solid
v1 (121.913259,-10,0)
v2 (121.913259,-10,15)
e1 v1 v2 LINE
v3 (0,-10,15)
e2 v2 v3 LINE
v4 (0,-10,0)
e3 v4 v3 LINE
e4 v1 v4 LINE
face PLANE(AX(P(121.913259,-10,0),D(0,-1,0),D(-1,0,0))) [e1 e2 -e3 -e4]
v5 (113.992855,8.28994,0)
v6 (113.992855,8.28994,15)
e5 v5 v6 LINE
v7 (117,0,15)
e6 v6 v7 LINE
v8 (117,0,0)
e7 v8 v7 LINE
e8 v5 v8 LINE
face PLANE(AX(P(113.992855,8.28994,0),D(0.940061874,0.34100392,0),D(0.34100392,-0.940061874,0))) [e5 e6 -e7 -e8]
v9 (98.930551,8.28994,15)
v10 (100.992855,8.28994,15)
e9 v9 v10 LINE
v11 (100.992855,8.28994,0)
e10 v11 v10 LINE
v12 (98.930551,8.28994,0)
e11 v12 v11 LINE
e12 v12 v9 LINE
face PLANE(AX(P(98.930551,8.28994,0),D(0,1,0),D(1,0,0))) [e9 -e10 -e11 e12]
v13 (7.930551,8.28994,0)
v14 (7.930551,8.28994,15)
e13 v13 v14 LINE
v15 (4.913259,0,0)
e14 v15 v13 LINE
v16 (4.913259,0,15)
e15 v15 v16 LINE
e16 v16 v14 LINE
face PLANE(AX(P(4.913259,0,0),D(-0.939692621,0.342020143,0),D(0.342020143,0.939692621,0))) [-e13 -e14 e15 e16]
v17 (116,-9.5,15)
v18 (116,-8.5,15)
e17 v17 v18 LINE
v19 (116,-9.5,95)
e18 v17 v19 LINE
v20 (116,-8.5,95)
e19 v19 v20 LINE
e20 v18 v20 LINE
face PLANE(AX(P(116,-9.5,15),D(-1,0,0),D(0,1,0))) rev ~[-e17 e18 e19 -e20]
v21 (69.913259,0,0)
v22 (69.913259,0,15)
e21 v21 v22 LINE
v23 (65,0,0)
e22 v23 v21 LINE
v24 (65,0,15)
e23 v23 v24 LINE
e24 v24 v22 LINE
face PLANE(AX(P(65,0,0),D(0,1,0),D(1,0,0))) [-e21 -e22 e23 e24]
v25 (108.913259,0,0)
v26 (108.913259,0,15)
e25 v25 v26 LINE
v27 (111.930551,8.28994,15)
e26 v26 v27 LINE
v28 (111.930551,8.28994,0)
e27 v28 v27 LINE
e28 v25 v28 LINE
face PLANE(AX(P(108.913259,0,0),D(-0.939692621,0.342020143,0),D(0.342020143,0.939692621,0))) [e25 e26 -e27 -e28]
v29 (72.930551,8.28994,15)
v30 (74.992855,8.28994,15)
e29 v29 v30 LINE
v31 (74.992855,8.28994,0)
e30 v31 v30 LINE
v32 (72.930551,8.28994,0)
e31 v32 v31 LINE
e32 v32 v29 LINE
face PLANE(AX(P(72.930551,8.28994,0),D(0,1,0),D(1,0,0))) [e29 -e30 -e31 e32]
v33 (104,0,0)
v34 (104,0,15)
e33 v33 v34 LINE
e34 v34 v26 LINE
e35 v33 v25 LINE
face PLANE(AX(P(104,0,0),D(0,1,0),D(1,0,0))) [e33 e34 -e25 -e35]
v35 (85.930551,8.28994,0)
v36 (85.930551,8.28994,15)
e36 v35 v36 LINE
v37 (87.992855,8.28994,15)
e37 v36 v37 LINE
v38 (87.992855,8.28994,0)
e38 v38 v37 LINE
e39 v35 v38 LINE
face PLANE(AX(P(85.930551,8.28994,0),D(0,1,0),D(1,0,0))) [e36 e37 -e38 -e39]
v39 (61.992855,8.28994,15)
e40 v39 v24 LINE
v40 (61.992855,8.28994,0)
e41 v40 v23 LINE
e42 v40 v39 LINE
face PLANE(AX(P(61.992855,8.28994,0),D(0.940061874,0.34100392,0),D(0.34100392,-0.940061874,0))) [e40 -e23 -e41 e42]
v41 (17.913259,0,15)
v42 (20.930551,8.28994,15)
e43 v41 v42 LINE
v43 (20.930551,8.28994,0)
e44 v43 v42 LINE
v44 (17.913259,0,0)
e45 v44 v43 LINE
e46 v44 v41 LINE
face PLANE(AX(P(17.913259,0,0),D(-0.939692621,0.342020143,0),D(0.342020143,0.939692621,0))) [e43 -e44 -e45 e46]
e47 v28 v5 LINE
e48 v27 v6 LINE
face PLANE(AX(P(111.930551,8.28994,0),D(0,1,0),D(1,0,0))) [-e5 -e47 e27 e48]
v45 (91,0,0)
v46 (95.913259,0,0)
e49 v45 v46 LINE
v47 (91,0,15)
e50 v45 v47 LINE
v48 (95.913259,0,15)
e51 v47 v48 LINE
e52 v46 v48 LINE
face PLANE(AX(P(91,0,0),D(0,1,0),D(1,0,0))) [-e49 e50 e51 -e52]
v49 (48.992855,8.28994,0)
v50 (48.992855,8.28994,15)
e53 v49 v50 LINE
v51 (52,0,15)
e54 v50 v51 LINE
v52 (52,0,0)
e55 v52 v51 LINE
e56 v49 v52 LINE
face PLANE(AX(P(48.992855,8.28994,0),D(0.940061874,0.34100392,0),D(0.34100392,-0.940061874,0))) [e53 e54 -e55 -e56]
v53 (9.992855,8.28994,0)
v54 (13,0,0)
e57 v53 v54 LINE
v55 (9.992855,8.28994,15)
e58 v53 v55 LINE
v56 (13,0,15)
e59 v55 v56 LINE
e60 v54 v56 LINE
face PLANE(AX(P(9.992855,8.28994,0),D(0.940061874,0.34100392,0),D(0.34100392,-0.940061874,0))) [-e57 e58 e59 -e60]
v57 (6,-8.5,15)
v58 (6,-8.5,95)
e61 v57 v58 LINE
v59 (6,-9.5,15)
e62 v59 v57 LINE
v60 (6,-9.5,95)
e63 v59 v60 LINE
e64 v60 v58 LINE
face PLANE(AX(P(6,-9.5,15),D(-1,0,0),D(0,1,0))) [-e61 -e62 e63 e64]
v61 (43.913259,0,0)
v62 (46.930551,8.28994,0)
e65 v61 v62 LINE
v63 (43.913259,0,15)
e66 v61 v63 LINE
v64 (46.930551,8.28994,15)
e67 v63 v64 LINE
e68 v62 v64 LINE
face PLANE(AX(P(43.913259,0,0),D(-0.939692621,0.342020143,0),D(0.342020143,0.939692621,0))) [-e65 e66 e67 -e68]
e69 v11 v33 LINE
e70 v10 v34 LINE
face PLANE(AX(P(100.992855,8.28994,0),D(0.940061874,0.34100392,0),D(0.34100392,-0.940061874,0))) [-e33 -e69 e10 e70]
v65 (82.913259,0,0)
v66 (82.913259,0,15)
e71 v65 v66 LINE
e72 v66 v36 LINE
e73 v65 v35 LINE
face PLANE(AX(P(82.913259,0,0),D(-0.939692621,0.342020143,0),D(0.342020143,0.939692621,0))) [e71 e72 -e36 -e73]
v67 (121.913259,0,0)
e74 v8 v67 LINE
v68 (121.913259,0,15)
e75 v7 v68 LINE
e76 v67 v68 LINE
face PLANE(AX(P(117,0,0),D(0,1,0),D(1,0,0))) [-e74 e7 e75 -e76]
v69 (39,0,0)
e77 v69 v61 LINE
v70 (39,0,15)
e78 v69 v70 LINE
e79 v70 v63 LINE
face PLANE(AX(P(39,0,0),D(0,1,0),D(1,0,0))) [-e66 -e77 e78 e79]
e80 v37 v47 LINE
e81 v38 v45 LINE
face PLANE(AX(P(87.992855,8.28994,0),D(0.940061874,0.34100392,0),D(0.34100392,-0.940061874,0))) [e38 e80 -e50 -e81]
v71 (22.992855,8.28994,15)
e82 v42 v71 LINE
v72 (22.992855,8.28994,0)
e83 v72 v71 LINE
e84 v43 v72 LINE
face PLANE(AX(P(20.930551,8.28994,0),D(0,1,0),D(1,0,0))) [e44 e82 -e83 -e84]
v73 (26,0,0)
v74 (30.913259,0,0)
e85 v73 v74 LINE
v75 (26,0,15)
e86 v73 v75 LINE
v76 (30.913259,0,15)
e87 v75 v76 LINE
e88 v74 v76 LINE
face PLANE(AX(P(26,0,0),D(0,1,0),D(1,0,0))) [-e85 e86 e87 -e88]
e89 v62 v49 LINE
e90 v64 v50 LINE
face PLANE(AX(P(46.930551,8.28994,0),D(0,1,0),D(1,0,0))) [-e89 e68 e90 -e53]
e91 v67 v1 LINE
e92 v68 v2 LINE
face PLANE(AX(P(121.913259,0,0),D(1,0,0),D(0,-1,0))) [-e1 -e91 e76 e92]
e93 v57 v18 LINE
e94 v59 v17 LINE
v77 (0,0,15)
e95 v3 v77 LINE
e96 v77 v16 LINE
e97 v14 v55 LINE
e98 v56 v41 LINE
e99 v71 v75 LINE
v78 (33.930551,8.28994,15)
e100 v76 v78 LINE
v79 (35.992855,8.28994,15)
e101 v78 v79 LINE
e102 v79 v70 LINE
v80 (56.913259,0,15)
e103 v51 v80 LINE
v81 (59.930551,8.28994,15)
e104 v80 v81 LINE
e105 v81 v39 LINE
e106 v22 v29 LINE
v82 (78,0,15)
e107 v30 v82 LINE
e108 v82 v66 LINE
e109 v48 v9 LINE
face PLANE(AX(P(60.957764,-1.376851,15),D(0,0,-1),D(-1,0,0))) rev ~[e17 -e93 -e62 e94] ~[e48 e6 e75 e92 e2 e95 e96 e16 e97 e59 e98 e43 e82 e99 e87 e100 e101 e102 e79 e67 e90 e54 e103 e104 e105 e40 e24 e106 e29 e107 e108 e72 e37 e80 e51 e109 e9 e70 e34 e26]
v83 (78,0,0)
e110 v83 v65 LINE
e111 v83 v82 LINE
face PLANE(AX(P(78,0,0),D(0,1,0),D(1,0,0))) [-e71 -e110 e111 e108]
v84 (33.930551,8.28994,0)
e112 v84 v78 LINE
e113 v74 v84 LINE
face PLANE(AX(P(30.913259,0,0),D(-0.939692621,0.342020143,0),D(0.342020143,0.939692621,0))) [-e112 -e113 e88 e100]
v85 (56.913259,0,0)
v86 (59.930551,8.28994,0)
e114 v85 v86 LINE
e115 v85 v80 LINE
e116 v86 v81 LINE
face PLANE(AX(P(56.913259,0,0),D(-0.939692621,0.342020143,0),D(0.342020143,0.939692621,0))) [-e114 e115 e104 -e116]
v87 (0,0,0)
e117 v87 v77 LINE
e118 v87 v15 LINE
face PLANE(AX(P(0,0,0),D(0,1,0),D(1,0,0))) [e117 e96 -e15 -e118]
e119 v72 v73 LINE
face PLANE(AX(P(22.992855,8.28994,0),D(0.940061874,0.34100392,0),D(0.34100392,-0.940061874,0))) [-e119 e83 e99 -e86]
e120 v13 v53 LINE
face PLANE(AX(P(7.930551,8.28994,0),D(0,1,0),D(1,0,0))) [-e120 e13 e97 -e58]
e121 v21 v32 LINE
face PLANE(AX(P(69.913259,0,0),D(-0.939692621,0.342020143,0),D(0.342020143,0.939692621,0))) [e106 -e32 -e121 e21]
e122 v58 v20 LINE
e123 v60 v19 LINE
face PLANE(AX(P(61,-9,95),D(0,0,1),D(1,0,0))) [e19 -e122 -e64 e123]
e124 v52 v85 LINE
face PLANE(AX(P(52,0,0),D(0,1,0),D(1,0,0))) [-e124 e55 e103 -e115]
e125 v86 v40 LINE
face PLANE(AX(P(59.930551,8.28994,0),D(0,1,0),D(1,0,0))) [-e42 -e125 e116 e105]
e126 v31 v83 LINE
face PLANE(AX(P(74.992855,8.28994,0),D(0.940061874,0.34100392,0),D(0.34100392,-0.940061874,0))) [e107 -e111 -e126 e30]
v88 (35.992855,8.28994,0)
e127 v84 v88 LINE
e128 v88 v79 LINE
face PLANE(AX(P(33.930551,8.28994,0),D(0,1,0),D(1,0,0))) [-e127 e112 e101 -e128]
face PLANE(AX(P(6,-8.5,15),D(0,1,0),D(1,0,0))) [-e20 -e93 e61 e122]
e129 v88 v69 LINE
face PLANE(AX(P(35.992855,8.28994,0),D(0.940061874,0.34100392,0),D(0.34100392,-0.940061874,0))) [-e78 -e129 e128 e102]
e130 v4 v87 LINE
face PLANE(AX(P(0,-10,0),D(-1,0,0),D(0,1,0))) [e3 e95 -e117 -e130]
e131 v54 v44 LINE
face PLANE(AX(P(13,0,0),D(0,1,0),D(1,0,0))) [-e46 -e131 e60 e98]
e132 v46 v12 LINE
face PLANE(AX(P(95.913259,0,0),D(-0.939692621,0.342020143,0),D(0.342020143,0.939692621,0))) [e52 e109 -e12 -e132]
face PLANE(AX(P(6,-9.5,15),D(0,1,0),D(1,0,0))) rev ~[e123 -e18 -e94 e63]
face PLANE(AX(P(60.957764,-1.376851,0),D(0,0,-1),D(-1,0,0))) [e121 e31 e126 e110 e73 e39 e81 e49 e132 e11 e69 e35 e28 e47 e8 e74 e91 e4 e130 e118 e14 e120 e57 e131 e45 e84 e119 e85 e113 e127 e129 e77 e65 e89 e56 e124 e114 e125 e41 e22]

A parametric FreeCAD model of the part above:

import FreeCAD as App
import Part
import Sketcher
Q = App.Units.Quantity

doc = App.newDocument("Part")
body = doc.addObject("PartDesign::Body", "Body")

sketch1 = doc.addObject("Sketcher::SketchObject", "Sketch")
body.addObject(sketch1)
sketch1.AttachmentSupport = (doc.XY_Plane, [""])
sketch1.MapMode = "FlatFace"
sketch1.addGeometry([
    Part.LineSegment(App.Vector(4.913259, 0, 0), App.Vector(0, 0, 0)),
    Part.LineSegment(App.Vector(0, 0, 0), App.Vector(0, -10, 0)),
    Part.LineSegment(App.Vector(0, -10, 0), App.Vector(121.913259, -10, 0)),
    Part.LineSegment(App.Vector(121.913259, -10, 0), App.Vector(121.913259, 0, 0)),
    Part.LineSegment(App.Vector(121.913259, 0, 0), App.Vector(117, 0, 0)),
    Part.LineSegment(App.Vector(117, 0, 0), App.Vector(113.992855, 8.28994, 0)),
    Part.LineSegment(App.Vector(113.992855, 8.28994, 0), App.Vector(111.930551, 8.28994, 0)),
    Part.LineSegment(App.Vector(111.930551, 8.28994, 0), App.Vector(108.913259, 0, 0)),
    Part.LineSegment(App.Vector(108.913259, 0, 0), App.Vector(104, 0, 0)),
    Part.LineSegment(App.Vector(104, 0, 0), App.Vector(100.992855, 8.28994, 0)),
    Part.LineSegment(App.Vector(100.992855, 8.28994, 0), App.Vector(98.930551, 8.28994, 0)),
    Part.LineSegment(App.Vector(98.930551, 8.28994, 0), App.Vector(95.913259, 0, 0)),
    Part.LineSegment(App.Vector(95.913259, 0, 0), App.Vector(91, 0, 0)),
    Part.LineSegment(App.Vector(91, 0, 0), App.Vector(87.992855, 8.28994, 0)),
    Part.LineSegment(App.Vector(87.992855, 8.28994, 0), App.Vector(85.930551, 8.28994, 0)),
    Part.LineSegment(App.Vector(85.930551, 8.28994, 0), App.Vector(82.913259, 0, 0)),
    Part.LineSegment(App.Vector(82.913259, 0, 0), App.Vector(78, 0, 0)),
    Part.LineSegment(App.Vector(78, 0, 0), App.Vector(74.992855, 8.28994, 0)),
    Part.LineSegment(App.Vector(74.992855, 8.28994, 0), App.Vector(72.930551, 8.28994, 0)),
    Part.LineSegment(App.Vector(72.930551, 8.28994, 0), App.Vector(69.913259, 0, 0)),
    Part.LineSegment(App.Vector(69.913259, 0, 0), App.Vector(65, 0, 0)),
    Part.LineSegment(App.Vector(65, 0, 0), App.Vector(61.992855, 8.28994, 0)),
    Part.LineSegment(App.Vector(61.992855, 8.28994, 0), App.Vector(59.930551, 8.28994, 0)),
    Part.LineSegment(App.Vector(59.930551, 8.28994, 0), App.Vector(56.913259, 0, 0)),
    Part.LineSegment(App.Vector(56.913259, 0, 0), App.Vector(52, 0, 0)),
    Part.LineSegment(App.Vector(52, 0, 0), App.Vector(48.992855, 8.28994, 0)),
    Part.LineSegment(App.Vector(48.992855, 8.28994, 0), App.Vector(46.930551, 8.28994, 0)),
    Part.LineSegment(App.Vector(46.930551, 8.28994, 0), App.Vector(43.913259, 0, 0)),
    Part.LineSegment(App.Vector(43.913259, 0, 0), App.Vector(39, 0, 0)),
    Part.LineSegment(App.Vector(39, 0, 0), App.Vector(35.992855, 8.28994, 0)),
    Part.LineSegment(App.Vector(35.992855, 8.28994, 0), App.Vector(33.930551, 8.28994, 0)),
    Part.LineSegment(App.Vector(33.930551, 8.28994, 0), App.Vector(30.913259, 0, 0)),
    Part.LineSegment(App.Vector(30.913259, 0, 0), App.Vector(26, 0, 0)),
    Part.LineSegment(App.Vector(26, 0, 0), App.Vector(22.992855, 8.28994, 0)),
    Part.LineSegment(App.Vector(22.992855, 8.28994, 0), App.Vector(20.930551, 8.28994, 0)),
    Part.LineSegment(App.Vector(20.930551, 8.28994, 0), App.Vector(17.913259, 0, 0)),
    Part.LineSegment(App.Vector(17.913259, 0, 0), App.Vector(13, 0, 0)),
    Part.LineSegment(App.Vector(13, 0, 0), App.Vector(9.992855, 8.28994, 0)),
    Part.LineSegment(App.Vector(9.992855, 8.28994, 0), App.Vector(7.930551, 8.28994, 0)),
    Part.LineSegment(App.Vector(7.930551, 8.28994, 0), App.Vector(4.913259, 0, 0)),
], False)
sketch1.addConstraint([
    Sketcher.Constraint("Coincident", 0, 2, 1, 1),
    Sketcher.Constraint("Coincident", 1, 2, 2, 1),
    Sketcher.Constraint("Coincident", 2, 2, 3, 1),
    Sketcher.Constraint("Coincident", 3, 2, 4, 1),
    Sketcher.Constraint("Coincident", 4, 2, 5, 1),
    Sketcher.Constraint("Coincident", 5, 2, 6, 1),
    Sketcher.Constraint("Coincident", 6, 2, 7, 1),
    Sketcher.Constraint("Coincident", 7, 2, 8, 1),
    Sketcher.Constraint("Coincident", 8, 2, 9, 1),
    Sketcher.Constraint("Coincident", 9, 2, 10, 1),
    Sketcher.Constraint("Coincident", 10, 2, 11, 1),
    Sketcher.Constraint("Coincident", 11, 2, 12, 1),
    Sketcher.Constraint("Coincident", 12, 2, 13, 1),
    Sketcher.Constraint("Coincident", 13, 2, 14, 1),
    Sketcher.Constraint("Coincident", 14, 2, 15, 1),
    Sketcher.Constraint("Coincident", 15, 2, 16, 1),
    Sketcher.Constraint("Coincident", 16, 2, 17, 1),
    Sketcher.Constraint("Coincident", 17, 2, 18, 1),
    Sketcher.Constraint("Coincident", 18, 2, 19, 1),
    Sketcher.Constraint("Coincident", 19, 2, 20, 1),
    Sketcher.Constraint("Coincident", 20, 2, 21, 1),
    Sketcher.Constraint("Coincident", 21, 2, 22, 1),
    Sketcher.Constraint("Coincident", 22, 2, 23, 1),
    Sketcher.Constraint("Coincident", 23, 2, 24, 1),
    Sketcher.Constraint("Coincident", 24, 2, 25, 1),
    Sketcher.Constraint("Coincident", 25, 2, 26, 1),
    Sketcher.Constraint("Coincident", 26, 2, 27, 1),
    Sketcher.Constraint("Coincident", 27, 2, 28, 1),
    Sketcher.Constraint("Coincident", 28, 2, 29, 1),
    Sketcher.Constraint("Coincident", 29, 2, 30, 1),
    Sketcher.Constraint("Coincident", 30, 2, 31, 1),
    Sketcher.Constraint("Coincident", 31, 2, 32, 1),
    Sketcher.Constraint("Coincident", 32, 2, 33, 1),
    Sketcher.Constraint("Coincident", 33, 2, 34, 1),
    Sketcher.Constraint("Coincident", 34, 2, 35, 1),
    Sketcher.Constraint("Coincident", 35, 2, 36, 1),
    Sketcher.Constraint("Coincident", 36, 2, 37, 1),
    Sketcher.Constraint("Coincident", 37, 2, 38, 1),
    Sketcher.Constraint("Coincident", 38, 2, 39, 1),
    Sketcher.Constraint("Coincident", 39, 2, 0, 1),
    Sketcher.Constraint("Horizontal", 0),
    Sketcher.Constraint("Vertical", 1),
    Sketcher.Constraint("Horizontal", 2),
    Sketcher.Constraint("Vertical", 3),
    Sketcher.Constraint("Horizontal", 4),
    Sketcher.Constraint("Horizontal", 6),
    Sketcher.Constraint("Horizontal", 8),
    Sketcher.Constraint("Horizontal", 10),
    Sketcher.Constraint("Horizontal", 12),
    Sketcher.Constraint("Horizontal", 14),
    Sketcher.Constraint("Horizontal", 16),
    Sketcher.Constraint("Horizontal", 18),
    Sketcher.Constraint("Horizontal", 20),
    Sketcher.Constraint("Horizontal", 22),
    Sketcher.Constraint("Horizontal", 24),
    Sketcher.Constraint("Horizontal", 26),
    Sketcher.Constraint("Horizontal", 28),
    Sketcher.Constraint("Horizontal", 30),
    Sketcher.Constraint("Horizontal", 32),
    Sketcher.Constraint("Horizontal", 34),
    Sketcher.Constraint("Horizontal", 36),
    Sketcher.Constraint("Horizontal", 38),
    Sketcher.Constraint("Coincident", 0, 2, -1, 1),
    Sketcher.Constraint("PointOnObject", 3, 2, -1),
    Sketcher.Constraint("PointOnObject", 7, 2, -1),
    Sketcher.Constraint("PointOnObject", 11, 2, -1),
    Sketcher.Constraint("PointOnObject", 15, 2, -1),
    Sketcher.Constraint("PointOnObject", 19, 2, -1),
    Sketcher.Constraint("PointOnObject", 23, 2, -1),
    Sketcher.Constraint("PointOnObject", 27, 2, -1),
    Sketcher.Constraint("PointOnObject", 31, 2, -1),
    Sketcher.Constraint("PointOnObject", 35, 2, -1),
    Sketcher.Constraint("Parallel", 5, 9),
    Sketcher.Constraint("Parallel", 7, 11),
    Sketcher.Constraint("Parallel", 9, 13),
    Sketcher.Constraint("Parallel", 11, 15),
    Sketcher.Constraint("Parallel", 13, 17),
    Sketcher.Constraint("Parallel", 15, 19),
    Sketcher.Constraint("Parallel", 17, 21),
    Sketcher.Constraint("Parallel", 19, 23),
    Sketcher.Constraint("Parallel", 21, 25),
    Sketcher.Constraint("Parallel", 23, 27),
    Sketcher.Constraint("Parallel", 25, 29),
    Sketcher.Constraint("Parallel", 27, 31),
    Sketcher.Constraint("Parallel", 29, 33),
    Sketcher.Constraint("Parallel", 31, 35),
    Sketcher.Constraint("Parallel", 33, 37),
    Sketcher.Constraint("Parallel", 35, 39),
    Sketcher.Constraint("Horizontal", 6, 2, 9, 2),
    Sketcher.Constraint("Horizontal", 10, 2, 13, 2),
    Sketcher.Constraint("Horizontal", 14, 2, 17, 2),
    Sketcher.Constraint("Horizontal", 18, 2, 21, 2),
    Sketcher.Constraint("Horizontal", 22, 2, 25, 2),
    Sketcher.Constraint("Horizontal", 26, 2, 29, 2),
    Sketcher.Constraint("Horizontal", 30, 2, 33, 2),
    Sketcher.Constraint("Horizontal", 34, 2, 37, 2),
    Sketcher.Constraint("Equal", 0, 4),
    Sketcher.Constraint("Equal", 4, 8),
    Sketcher.Constraint("Equal", 6, 10),
    Sketcher.Constraint("Equal", 8, 12),
    Sketcher.Constraint("Equal", 10, 14),
    Sketcher.Constraint("Equal", 12, 16),
    Sketcher.Constraint("Equal", 14, 18),
    Sketcher.Constraint("Equal", 16, 20),
    Sketcher.Constraint("Equal", 18, 22),
    Sketcher.Constraint("Equal", 20, 24),
    Sketcher.Constraint("Equal", 22, 26),
    Sketcher.Constraint("Equal", 24, 28),
    Sketcher.Constraint("Equal", 26, 30),
    Sketcher.Constraint("Equal", 28, 32),
    Sketcher.Constraint("Equal", 30, 34),
    Sketcher.Constraint("Equal", 32, 36),
    Sketcher.Constraint("Equal", 34, 38),
    Sketcher.Constraint("DistanceY", 1, 2, 1, 1, Q("10 mm")),
    Sketcher.Constraint("Angle", 7, Q("-110 deg")),
    Sketcher.Constraint("DistanceX", -1, 1, 4, 2, Q("117 mm")),
    Sketcher.Constraint("DistanceX", 0, 2, 0, 1, Q("4.913259 mm")),
    Sketcher.Constraint("Distance", 7, Q("8.82197 mm")),
    Sketcher.Constraint("DistanceX", 6, 2, 6, 1, Q("2.062304 mm")),
])
pad1 = doc.addObject("PartDesign::Pad", "Pad")
body.addObject(pad1)
pad1.Profile = sketch1
pad1.Length = 15

sketch2 = doc.addObject("Sketcher::SketchObject", "Sketch001")
body.addObject(sketch2)
sketch2.AttachmentSupport = (doc.XY_Plane, [""])
sketch2.MapMode = "FlatFace"
sketch2.AttachmentOffset = App.Placement(App.Vector(0, 0, 15), App.Rotation())
sketch2.addGeometry([
    Part.LineSegment(App.Vector(6, -8.5, 0), App.Vector(6, -9.5, 0)),
    Part.LineSegment(App.Vector(6, -9.5, 0), App.Vector(116, -9.5, 0)),
    Part.LineSegment(App.Vector(116, -9.5, 0), App.Vector(116, -8.5, 0)),
    Part.LineSegment(App.Vector(116, -8.5, 0), App.Vector(6, -8.5, 0)),
], False)
sketch2.addConstraint([
    Sketcher.Constraint("Coincident", 0, 2, 1, 1),
    Sketcher.Constraint("Coincident", 1, 2, 2, 1),
    Sketcher.Constraint("Coincident", 2, 2, 3, 1),
    Sketcher.Constraint("Coincident", 3, 2, 0, 1),
    Sketcher.Constraint("Vertical", 0),
    Sketcher.Constraint("Horizontal", 1),
    Sketcher.Constraint("Vertical", 2),
    Sketcher.Constraint("Horizontal", 3),
    Sketcher.Constraint("DistanceX", 1, 1, 1, 2, Q("110 mm")),
    Sketcher.Constraint("DistanceY", 0, 2, 0, 1, Q("1 mm")),
    Sketcher.Constraint("DistanceX", -1, 1, 0, 2, Q("6 mm")),
    Sketcher.Constraint("DistanceY", 0, 2, -1, 1, Q("9.5 mm")),
])
pad2 = doc.addObject("PartDesign::Pad", "Pad001")
body.addObject(pad2)
pad2.Profile = sketch2
pad2.Length = 80

doc.recompute()
